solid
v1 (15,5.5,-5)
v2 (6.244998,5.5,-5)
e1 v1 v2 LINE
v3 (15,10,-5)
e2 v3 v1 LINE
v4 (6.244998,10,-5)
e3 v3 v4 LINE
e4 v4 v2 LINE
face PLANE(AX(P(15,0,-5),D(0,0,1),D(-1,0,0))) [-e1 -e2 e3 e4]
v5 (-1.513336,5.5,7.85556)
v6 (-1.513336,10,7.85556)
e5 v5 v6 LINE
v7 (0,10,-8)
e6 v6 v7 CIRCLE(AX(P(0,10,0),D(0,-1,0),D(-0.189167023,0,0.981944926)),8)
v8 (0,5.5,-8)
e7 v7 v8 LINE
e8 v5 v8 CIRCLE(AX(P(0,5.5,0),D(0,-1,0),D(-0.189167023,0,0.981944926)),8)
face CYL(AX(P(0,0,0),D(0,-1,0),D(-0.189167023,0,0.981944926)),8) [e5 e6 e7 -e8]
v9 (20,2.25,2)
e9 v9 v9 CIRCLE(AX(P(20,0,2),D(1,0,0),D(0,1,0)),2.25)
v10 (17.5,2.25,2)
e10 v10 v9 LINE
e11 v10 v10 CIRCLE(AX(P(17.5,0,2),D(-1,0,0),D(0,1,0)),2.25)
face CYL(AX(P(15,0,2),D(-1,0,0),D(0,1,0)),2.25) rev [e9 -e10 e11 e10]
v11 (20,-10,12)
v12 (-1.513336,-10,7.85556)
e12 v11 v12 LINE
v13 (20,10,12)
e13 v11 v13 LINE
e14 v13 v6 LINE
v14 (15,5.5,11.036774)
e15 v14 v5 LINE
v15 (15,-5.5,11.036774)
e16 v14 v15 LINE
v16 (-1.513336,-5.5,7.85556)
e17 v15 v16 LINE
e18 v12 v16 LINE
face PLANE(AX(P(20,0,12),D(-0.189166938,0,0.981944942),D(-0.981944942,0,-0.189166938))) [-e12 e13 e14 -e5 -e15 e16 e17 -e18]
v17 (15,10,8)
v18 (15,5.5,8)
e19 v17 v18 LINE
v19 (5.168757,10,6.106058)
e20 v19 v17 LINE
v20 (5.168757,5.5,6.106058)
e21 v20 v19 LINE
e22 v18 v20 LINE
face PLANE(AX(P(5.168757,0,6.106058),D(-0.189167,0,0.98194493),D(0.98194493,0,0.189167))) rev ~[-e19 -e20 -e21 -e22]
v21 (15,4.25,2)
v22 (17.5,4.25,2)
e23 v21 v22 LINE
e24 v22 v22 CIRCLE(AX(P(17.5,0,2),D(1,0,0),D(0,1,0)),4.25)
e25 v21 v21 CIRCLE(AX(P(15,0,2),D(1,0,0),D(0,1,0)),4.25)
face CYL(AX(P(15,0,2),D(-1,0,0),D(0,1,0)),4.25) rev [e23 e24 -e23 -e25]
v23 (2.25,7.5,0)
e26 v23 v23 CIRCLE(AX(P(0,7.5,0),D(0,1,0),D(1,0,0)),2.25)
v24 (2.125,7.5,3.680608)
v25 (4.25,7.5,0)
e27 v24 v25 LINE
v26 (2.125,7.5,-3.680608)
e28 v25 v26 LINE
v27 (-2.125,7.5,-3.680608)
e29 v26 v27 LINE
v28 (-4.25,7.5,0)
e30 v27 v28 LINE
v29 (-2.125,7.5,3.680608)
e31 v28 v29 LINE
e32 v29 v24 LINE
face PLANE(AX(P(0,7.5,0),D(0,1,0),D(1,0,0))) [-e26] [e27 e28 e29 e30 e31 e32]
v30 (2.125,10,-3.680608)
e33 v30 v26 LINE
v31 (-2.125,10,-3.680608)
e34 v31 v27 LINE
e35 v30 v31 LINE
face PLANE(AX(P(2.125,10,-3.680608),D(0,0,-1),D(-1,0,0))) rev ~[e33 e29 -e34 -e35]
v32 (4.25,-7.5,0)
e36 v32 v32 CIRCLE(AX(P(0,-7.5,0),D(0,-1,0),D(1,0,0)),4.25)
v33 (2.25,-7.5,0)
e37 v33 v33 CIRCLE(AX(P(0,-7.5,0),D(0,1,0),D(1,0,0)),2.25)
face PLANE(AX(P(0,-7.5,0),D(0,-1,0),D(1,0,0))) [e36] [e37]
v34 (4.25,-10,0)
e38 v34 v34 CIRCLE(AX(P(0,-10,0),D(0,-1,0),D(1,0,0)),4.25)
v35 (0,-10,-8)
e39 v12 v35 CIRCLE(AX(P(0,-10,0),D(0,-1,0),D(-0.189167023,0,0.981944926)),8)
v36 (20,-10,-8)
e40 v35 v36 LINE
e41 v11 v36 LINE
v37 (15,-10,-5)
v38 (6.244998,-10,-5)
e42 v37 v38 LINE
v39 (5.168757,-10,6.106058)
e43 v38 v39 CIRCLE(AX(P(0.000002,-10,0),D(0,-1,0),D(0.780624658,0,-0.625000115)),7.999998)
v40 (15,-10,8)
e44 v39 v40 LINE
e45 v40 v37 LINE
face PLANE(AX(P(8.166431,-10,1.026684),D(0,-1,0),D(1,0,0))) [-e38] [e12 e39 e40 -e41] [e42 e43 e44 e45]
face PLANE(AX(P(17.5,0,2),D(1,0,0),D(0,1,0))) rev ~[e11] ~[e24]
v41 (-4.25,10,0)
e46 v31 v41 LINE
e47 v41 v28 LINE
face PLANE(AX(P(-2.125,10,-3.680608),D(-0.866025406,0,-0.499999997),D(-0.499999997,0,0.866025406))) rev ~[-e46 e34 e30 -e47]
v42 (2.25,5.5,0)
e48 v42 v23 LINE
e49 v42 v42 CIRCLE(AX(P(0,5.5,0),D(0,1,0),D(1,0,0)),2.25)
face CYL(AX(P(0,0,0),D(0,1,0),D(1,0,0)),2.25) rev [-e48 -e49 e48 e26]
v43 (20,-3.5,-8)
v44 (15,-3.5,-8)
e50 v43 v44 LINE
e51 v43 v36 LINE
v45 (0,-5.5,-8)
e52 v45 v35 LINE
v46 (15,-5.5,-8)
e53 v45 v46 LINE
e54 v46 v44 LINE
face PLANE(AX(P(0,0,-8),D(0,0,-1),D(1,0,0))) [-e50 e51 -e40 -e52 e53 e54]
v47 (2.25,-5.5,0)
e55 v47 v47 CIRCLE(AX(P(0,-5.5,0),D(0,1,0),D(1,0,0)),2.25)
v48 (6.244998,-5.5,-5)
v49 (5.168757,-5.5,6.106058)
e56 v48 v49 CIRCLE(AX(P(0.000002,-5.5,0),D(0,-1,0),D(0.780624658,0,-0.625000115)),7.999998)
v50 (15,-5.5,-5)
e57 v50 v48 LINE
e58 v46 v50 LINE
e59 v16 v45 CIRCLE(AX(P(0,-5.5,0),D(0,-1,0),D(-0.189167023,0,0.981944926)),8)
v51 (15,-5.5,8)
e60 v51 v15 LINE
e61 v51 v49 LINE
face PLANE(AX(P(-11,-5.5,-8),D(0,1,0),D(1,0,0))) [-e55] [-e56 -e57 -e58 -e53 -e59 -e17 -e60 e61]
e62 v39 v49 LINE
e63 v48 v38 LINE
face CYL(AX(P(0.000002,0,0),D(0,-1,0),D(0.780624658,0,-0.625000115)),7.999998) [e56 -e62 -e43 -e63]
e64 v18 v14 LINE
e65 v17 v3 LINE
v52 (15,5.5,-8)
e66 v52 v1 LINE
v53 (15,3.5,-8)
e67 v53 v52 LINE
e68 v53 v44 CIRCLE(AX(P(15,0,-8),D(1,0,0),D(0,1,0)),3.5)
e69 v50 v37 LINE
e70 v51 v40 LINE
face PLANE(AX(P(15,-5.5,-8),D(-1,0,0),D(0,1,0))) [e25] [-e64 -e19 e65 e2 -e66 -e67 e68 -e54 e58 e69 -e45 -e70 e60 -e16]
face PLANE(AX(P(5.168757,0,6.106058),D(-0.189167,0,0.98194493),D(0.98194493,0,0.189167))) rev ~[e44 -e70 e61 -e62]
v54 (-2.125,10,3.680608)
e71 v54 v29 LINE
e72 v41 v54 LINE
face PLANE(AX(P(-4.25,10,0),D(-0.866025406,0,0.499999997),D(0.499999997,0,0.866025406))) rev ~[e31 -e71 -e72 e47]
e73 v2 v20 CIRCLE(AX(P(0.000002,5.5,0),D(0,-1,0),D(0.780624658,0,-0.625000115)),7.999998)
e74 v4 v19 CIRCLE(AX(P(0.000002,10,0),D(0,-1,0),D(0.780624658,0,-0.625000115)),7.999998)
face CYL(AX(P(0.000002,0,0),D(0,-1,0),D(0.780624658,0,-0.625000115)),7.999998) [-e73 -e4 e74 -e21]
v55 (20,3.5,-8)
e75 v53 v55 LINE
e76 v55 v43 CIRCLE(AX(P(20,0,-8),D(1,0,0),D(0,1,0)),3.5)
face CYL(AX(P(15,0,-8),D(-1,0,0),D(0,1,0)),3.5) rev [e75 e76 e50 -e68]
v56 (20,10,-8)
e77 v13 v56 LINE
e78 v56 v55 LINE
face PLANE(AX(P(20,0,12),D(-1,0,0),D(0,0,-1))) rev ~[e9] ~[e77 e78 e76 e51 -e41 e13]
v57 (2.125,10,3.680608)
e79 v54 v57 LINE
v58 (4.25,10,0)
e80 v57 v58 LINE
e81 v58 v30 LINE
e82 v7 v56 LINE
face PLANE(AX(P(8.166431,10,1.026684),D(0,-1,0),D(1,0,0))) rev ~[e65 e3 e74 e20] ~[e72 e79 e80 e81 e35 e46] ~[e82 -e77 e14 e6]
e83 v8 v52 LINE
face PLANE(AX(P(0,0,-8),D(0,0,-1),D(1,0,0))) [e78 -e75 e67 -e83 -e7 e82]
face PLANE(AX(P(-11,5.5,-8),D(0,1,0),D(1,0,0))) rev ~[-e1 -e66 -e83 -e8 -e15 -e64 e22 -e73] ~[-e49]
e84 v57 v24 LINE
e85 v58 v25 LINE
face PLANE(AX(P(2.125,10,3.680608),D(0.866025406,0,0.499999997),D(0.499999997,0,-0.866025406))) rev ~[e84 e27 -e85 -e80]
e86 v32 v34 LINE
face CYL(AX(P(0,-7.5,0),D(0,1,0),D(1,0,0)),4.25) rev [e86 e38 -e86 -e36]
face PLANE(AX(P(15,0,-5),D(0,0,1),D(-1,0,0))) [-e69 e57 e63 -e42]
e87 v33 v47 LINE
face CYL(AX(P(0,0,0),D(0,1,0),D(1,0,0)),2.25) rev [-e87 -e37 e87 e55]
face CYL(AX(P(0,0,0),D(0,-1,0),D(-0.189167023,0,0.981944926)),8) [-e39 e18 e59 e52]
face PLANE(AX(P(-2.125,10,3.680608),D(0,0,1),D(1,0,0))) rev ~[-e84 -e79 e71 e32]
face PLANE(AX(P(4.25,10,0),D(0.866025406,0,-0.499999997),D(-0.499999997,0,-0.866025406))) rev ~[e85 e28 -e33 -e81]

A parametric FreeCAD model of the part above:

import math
import FreeCAD as App
import Part
import Sketcher
Q = App.Units.Quantity

doc = App.newDocument("Part")
body = doc.addObject("PartDesign::Body", "Body")

# Sketch on XZ plane
sketch1 = body.newObject("Sketcher::SketchObject", "Sketch")
sketch1.AttachmentSupport = (doc.getObject("XZ_Plane"), [""])
sketch1.MapMode = "FlatFace"
sketch1.addGeometry([
    Part.ArcOfCircle(Part.Circle(App.Vector(0, 0, 0), App.Vector(0, 0, 1), 8), math.radians(101), math.radians(270)),  # 0
    Part.LineSegment(App.Vector(0, -8, 0), App.Vector(20, -8, 0)),  # 1
    Part.LineSegment(App.Vector(20, -8, 0), App.Vector(20, 12, 0)),  # 2
    Part.LineSegment(App.Vector(20, 12, 0), App.Vector(-1.5, 7.9, 0)),  # 3
    Part.Circle(App.Vector(0, 0, 0), App.Vector(0, 0, 1), 2.2),  # 4
    Part.ArcOfCircle(Part.Circle(App.Vector(0, 0, 0), App.Vector(0, 0, 1), 8), math.radians(-39), math.radians(50)),  # 5
    Part.LineSegment(App.Vector(5.2, 6.1, 0), App.Vector(15, 8, 0)),  # 6
    Part.LineSegment(App.Vector(15, 8, 0), App.Vector(15, -5, 0)),  # 7
    Part.LineSegment(App.Vector(15, -5, 0), App.Vector(6.2, -5, 0)),  # 8
], False)
sketch1.addConstraint([
    Sketcher.Constraint("Tangent", 0, 2, 1, 1),
    Sketcher.Constraint("Coincident", 1, 2, 2, 1),
    Sketcher.Constraint("Coincident", 2, 2, 3, 1),
    Sketcher.Constraint("Tangent", 3, 2, 0, 1),
    Sketcher.Constraint("Coincident", 5, 2, 6, 1),
    Sketcher.Constraint("Coincident", 6, 2, 7, 1),
    Sketcher.Constraint("Coincident", 7, 2, 8, 1),
    Sketcher.Constraint("Coincident", 8, 2, 5, 1),
    Sketcher.Constraint("Horizontal", 1),
    Sketcher.Constraint("Vertical", 2),
    Sketcher.Constraint("Vertical", 7),
    Sketcher.Constraint("Horizontal", 8),
    Sketcher.Constraint("Coincident", 0, 3, -1, 1),
    Sketcher.Constraint("Coincident", 4, 3, -1, 1),
    Sketcher.Constraint("Coincident", 5, 3, -1, 1),
    Sketcher.Constraint("Equal", 0, 5),
    Sketcher.Constraint("Parallel", 3, 6),
    Sketcher.Constraint("Equal", 1, 2),
    Sketcher.Constraint("Radius", 0, Q("8 mm")),
    Sketcher.Constraint("Diameter", 4, Q("4.5 mm")),
    Sketcher.Constraint("DistanceX", 1, 1, 1, 2, Q("20 mm")),
    Sketcher.Constraint("DistanceY", 7, 2, 7, 1, Q("13 mm")),
    Sketcher.Constraint("DistanceX", -1, 1, 6, 2, Q("15 mm")),
    Sketcher.Constraint("DistanceY", -1, 1, 6, 2, Q("8 mm")),
])
pad1 = body.newObject("PartDesign::Pad", "Pad")
pad1.Profile = sketch1
pad1.Length = 20
pad1.Midplane = True

# Sketch on YZ plane
sketch2 = body.newObject("Sketcher::SketchObject", "Sketch001")
sketch2.AttachmentSupport = (doc.getObject("YZ_Plane"), [""])
sketch2.MapMode = "FlatFace"
sketch2.AttachmentOffset = App.Placement(App.Vector(0, 0, 15), App.Rotation())
sketch2.addGeometry(Part.Circle(App.Vector(0, -8, 0), App.Vector(0, 0, 1), 3.5), False)
sketch2.addConstraint([
    Sketcher.Constraint("PointOnObject", 0, 3, -2),
    Sketcher.Constraint("Diameter", 0, Q("7 mm")),
    Sketcher.Constraint("DistanceY", 0, 3, -1, 1, Q("8 mm")),
])
pocket1 = body.newObject("PartDesign::Pocket", "Pocket")
pocket1.Profile = sketch2
pocket1.Length = 5
pocket1.Reversed = True

# Sketch on XY plane
sketch3 = body.newObject("Sketcher::SketchObject", "Sketch002")
sketch3.AttachmentSupport = (doc.getObject("XY_Plane"), [""])
sketch3.MapMode = "FlatFace"
sketch3.AttachmentOffset = App.Placement(App.Vector(0, 0, -8), App.Rotation())
sketch3.addGeometry([
    Part.LineSegment(App.Vector(-11, 6, 0), App.Vector(-11, -6, 0)),
    Part.LineSegment(App.Vector(-11, -6, 0), App.Vector(15, -6, 0)),
    Part.LineSegment(App.Vector(15, -6, 0), App.Vector(15, 6, 0)),
    Part.LineSegment(App.Vector(15, 6, 0), App.Vector(-11, 6, 0)),
], False)
sketch3.addConstraint([
    Sketcher.Constraint("Coincident", 0, 2, 1, 1),
    Sketcher.Constraint("Coincident", 1, 2, 2, 1),
    Sketcher.Constraint("Coincident", 2, 2, 3, 1),
    Sketcher.Constraint("Coincident", 3, 2, 0, 1),
    Sketcher.Constraint("Vertical", 0),
    Sketcher.Constraint("Horizontal", 1),
    Sketcher.Constraint("Vertical", 2),
    Sketcher.Constraint("Horizontal", 3),
    Sketcher.Constraint("DistanceX", 1, 1, 1, 2, Q("26 mm")),
    Sketcher.Constraint("DistanceY", 0, 2, 0, 1, Q("11 mm")),
    Sketcher.Constraint("DistanceX", 0, 2, -1, 1, Q("11 mm")),
    Sketcher.Constraint("DistanceY", 0, 2, -1, 1, Q("5.5 mm")),
])
pocket2 = body.newObject("PartDesign::Pocket", "Pocket001")
pocket2.Profile = sketch3
pocket2.Length = 20
pocket2.Reversed = True

# Sketch on YZ plane
sketch4 = body.newObject("Sketcher::SketchObject", "Sketch003")
sketch4.AttachmentSupport = (doc.getObject("YZ_Plane"), [""])
sketch4.MapMode = "FlatFace"
sketch4.AttachmentOffset = App.Placement(App.Vector(0, 0, 15), App.Rotation())
sketch4.addGeometry(Part.Circle(App.Vector(0, 2, 0), App.Vector(0, 0, 1), 2.2), False)
sketch4.addConstraint([
    Sketcher.Constraint("PointOnObject", 0, 3, -2),
    Sketcher.Constraint("Diameter", 0, Q("4.5 mm")),
    Sketcher.Constraint("DistanceY", -1, 1, 0, 3, Q("2 mm")),
])
pocket3 = body.newObject("PartDesign::Pocket", "Pocket002")
pocket3.Profile = sketch4
pocket3.Length = 5
pocket3.Reversed = True

# Sketch on YZ plane
sketch5 = body.newObject("Sketcher::SketchObject", "Sketch004")
sketch5.AttachmentSupport = (doc.getObject("YZ_Plane"), [""])
sketch5.MapMode = "FlatFace"
sketch5.AttachmentOffset = App.Placement(App.Vector(0, 0, 15), App.Rotation())
sketch5.addGeometry(Part.Circle(App.Vector(0, 2, 0), App.Vector(0, 0, 1), 4.2), False)
sketch5.addConstraint([
    Sketcher.Constraint("PointOnObject", 0, 3, -2),
    Sketcher.Constraint("Diameter", 0, Q("8.5 mm")),
    Sketcher.Constraint("DistanceY", -1, 1, 0, 3, Q("2 mm")),
])
pocket4 = body.newObject("PartDesign::Pocket", "Pocket003")
pocket4.Profile = sketch5
pocket4.Length = 2.5
pocket4.Reversed = True

# Sketch on XZ plane
sketch6 = body.newObject("Sketcher::SketchObject", "Sketch005")
sketch6.AttachmentSupport = (doc.getObject("XZ_Plane"), [""])
sketch6.MapMode = "FlatFace"
sketch6.AttachmentOffset = App.Placement(App.Vector(0, 0, 7.5), App.Rotation())
sketch6.addGeometry(Part.Circle(App.Vector(0, 0, 0), App.Vector(0, 0, 1), 4.2), False)
sketch6.addConstraint([
    Sketcher.Constraint("Coincident", 0, 3, -1, 1),
    Sketcher.Constraint("Diameter", 0, Q("8.5 mm")),
])
pocket5 = body.newObject("PartDesign::Pocket", "Pocket004")
pocket5.Profile = sketch6
pocket5.Length = 2.5
pocket5.Reversed = True

# Sketch on XZ plane
sketch7 = body.newObject("Sketcher::SketchObject", "Sketch006")
sketch7.AttachmentSupport = (doc.getObject("XZ_Plane"), [""])
sketch7.MapMode = "FlatFace"
sketch7.AttachmentOffset = App.Placement(App.Vector(0, 0, -10), App.Rotation())
sketch7.addGeometry([
    Part.LineSegment(App.Vector(4.2, 0, 0), App.Vector(2.1, -3.7, 0)),  # 0
    Part.LineSegment(App.Vector(2.1, -3.7, 0), App.Vector(-2.1, -3.7, 0)),  # 1
    Part.LineSegment(App.Vector(-2.1, -3.7, 0), App.Vector(-4.2, 0, 0)),  # 2
    Part.LineSegment(App.Vector(-4.2, 0, 0), App.Vector(-2.1, 3.7, 0)),  # 3
    Part.LineSegment(App.Vector(-2.1, 3.7, 0), App.Vector(2.1, 3.7, 0)),  # 4
    Part.LineSegment(App.Vector(2.1, 3.7, 0), App.Vector(4.2, 0, 0)),  # 5
], False)
sketch7.addConstraint([
    Sketcher.Constraint("Coincident", 0, 2, 1, 1),
    Sketcher.Constraint("Coincident", 1, 2, 2, 1),
    Sketcher.Constraint("Coincident", 2, 2, 3, 1),
    Sketcher.Constraint("Coincident", 3, 2, 4, 1),
    Sketcher.Constraint("Coincident", 4, 2, 5, 1),
    Sketcher.Constraint("Coincident", 5, 2, 0, 1),
    Sketcher.Constraint("Horizontal", 1),
    Sketcher.Constraint("Horizontal", 4),
    Sketcher.Constraint("Symmetric", 0, 2, 3, 2, -1, 1),
    Sketcher.Constraint("Symmetric", 2, 2, 5, 2, -1, 1),
    Sketcher.Constraint("PointOnObject", 2, 2, -1),
    Sketcher.Constraint("Parallel", 2, 5),
    Sketcher.Constraint("Vertical", 1, 2, 3, 2),
    Sketcher.Constraint("Angle", 0, Q("-120 deg")),
    Sketcher.Constraint("DistanceX", 1, 2, 1, 1, Q("4.25 mm")),
    Sketcher.Constraint("DistanceX", 2, 2, 5, 2, Q("8.5 mm")),
])
pocket6 = body.newObject("PartDesign::Pocket", "Pocket005")
pocket6.Profile = sketch7
pocket6.Length = 2.5
pocket6.Reversed = True

doc.recompute()
